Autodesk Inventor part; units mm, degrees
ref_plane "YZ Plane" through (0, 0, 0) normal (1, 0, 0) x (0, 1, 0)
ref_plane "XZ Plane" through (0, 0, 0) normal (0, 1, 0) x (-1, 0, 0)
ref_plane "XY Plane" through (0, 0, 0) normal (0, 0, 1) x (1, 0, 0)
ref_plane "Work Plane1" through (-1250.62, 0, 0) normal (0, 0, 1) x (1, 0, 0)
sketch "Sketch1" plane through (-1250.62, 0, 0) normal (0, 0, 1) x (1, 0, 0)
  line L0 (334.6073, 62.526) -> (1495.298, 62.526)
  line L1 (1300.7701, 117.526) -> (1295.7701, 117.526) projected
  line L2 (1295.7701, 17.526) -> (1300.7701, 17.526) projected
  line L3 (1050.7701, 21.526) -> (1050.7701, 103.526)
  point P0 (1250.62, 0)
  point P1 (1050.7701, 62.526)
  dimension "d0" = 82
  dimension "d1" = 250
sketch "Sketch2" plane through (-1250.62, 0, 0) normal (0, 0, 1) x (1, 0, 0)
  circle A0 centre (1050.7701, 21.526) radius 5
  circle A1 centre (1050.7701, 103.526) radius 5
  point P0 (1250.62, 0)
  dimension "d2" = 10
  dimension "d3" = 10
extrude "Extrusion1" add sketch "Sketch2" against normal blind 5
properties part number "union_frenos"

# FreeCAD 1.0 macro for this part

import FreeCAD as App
import Part
import Sketcher

V = App.Vector

doc = App.newDocument("Part")
body = doc.addObject("PartDesign::Body", "Body")
body.AllowCompound = True

sketch1 = body.newObject("Sketcher::SketchObject", "Sketch")
sketch1.AttachmentSupport = (doc.getObject("XY_Plane"), [""])
sketch1.MapMode = "FlatFace"
sketch1.addGeometry(Part.Circle(V(-199.8499, 21.526, 0), V(0, 0, 1), 5), False)
sketch1.addGeometry(Part.Circle(V(-199.8499, 103.526, 0), V(0, 0, 1), 5), False)
sketch1.addConstraint(Sketcher.Constraint("Equal", 0, 1))
sketch1.addConstraint(Sketcher.Constraint("Vertical", 0, 3, 1, 3))
sketch1.addConstraint(Sketcher.Constraint("Diameter", 0, 10.0))
sketch1.addConstraint(Sketcher.Constraint("DistanceY", 0, 3, 1, 3, 82.0))
sketch1.addConstraint(Sketcher.Constraint("DistanceX", 0, 3, -1, 1, 199.85))
sketch1.addConstraint(Sketcher.Constraint("DistanceY", -1, 1, 0, 3, 21.526))
pad1 = body.newObject("PartDesign::Pad", "Pad")
pad1.Profile = sketch1
pad1.Length = 5
pad1.Reversed = True

doc.recompute()
